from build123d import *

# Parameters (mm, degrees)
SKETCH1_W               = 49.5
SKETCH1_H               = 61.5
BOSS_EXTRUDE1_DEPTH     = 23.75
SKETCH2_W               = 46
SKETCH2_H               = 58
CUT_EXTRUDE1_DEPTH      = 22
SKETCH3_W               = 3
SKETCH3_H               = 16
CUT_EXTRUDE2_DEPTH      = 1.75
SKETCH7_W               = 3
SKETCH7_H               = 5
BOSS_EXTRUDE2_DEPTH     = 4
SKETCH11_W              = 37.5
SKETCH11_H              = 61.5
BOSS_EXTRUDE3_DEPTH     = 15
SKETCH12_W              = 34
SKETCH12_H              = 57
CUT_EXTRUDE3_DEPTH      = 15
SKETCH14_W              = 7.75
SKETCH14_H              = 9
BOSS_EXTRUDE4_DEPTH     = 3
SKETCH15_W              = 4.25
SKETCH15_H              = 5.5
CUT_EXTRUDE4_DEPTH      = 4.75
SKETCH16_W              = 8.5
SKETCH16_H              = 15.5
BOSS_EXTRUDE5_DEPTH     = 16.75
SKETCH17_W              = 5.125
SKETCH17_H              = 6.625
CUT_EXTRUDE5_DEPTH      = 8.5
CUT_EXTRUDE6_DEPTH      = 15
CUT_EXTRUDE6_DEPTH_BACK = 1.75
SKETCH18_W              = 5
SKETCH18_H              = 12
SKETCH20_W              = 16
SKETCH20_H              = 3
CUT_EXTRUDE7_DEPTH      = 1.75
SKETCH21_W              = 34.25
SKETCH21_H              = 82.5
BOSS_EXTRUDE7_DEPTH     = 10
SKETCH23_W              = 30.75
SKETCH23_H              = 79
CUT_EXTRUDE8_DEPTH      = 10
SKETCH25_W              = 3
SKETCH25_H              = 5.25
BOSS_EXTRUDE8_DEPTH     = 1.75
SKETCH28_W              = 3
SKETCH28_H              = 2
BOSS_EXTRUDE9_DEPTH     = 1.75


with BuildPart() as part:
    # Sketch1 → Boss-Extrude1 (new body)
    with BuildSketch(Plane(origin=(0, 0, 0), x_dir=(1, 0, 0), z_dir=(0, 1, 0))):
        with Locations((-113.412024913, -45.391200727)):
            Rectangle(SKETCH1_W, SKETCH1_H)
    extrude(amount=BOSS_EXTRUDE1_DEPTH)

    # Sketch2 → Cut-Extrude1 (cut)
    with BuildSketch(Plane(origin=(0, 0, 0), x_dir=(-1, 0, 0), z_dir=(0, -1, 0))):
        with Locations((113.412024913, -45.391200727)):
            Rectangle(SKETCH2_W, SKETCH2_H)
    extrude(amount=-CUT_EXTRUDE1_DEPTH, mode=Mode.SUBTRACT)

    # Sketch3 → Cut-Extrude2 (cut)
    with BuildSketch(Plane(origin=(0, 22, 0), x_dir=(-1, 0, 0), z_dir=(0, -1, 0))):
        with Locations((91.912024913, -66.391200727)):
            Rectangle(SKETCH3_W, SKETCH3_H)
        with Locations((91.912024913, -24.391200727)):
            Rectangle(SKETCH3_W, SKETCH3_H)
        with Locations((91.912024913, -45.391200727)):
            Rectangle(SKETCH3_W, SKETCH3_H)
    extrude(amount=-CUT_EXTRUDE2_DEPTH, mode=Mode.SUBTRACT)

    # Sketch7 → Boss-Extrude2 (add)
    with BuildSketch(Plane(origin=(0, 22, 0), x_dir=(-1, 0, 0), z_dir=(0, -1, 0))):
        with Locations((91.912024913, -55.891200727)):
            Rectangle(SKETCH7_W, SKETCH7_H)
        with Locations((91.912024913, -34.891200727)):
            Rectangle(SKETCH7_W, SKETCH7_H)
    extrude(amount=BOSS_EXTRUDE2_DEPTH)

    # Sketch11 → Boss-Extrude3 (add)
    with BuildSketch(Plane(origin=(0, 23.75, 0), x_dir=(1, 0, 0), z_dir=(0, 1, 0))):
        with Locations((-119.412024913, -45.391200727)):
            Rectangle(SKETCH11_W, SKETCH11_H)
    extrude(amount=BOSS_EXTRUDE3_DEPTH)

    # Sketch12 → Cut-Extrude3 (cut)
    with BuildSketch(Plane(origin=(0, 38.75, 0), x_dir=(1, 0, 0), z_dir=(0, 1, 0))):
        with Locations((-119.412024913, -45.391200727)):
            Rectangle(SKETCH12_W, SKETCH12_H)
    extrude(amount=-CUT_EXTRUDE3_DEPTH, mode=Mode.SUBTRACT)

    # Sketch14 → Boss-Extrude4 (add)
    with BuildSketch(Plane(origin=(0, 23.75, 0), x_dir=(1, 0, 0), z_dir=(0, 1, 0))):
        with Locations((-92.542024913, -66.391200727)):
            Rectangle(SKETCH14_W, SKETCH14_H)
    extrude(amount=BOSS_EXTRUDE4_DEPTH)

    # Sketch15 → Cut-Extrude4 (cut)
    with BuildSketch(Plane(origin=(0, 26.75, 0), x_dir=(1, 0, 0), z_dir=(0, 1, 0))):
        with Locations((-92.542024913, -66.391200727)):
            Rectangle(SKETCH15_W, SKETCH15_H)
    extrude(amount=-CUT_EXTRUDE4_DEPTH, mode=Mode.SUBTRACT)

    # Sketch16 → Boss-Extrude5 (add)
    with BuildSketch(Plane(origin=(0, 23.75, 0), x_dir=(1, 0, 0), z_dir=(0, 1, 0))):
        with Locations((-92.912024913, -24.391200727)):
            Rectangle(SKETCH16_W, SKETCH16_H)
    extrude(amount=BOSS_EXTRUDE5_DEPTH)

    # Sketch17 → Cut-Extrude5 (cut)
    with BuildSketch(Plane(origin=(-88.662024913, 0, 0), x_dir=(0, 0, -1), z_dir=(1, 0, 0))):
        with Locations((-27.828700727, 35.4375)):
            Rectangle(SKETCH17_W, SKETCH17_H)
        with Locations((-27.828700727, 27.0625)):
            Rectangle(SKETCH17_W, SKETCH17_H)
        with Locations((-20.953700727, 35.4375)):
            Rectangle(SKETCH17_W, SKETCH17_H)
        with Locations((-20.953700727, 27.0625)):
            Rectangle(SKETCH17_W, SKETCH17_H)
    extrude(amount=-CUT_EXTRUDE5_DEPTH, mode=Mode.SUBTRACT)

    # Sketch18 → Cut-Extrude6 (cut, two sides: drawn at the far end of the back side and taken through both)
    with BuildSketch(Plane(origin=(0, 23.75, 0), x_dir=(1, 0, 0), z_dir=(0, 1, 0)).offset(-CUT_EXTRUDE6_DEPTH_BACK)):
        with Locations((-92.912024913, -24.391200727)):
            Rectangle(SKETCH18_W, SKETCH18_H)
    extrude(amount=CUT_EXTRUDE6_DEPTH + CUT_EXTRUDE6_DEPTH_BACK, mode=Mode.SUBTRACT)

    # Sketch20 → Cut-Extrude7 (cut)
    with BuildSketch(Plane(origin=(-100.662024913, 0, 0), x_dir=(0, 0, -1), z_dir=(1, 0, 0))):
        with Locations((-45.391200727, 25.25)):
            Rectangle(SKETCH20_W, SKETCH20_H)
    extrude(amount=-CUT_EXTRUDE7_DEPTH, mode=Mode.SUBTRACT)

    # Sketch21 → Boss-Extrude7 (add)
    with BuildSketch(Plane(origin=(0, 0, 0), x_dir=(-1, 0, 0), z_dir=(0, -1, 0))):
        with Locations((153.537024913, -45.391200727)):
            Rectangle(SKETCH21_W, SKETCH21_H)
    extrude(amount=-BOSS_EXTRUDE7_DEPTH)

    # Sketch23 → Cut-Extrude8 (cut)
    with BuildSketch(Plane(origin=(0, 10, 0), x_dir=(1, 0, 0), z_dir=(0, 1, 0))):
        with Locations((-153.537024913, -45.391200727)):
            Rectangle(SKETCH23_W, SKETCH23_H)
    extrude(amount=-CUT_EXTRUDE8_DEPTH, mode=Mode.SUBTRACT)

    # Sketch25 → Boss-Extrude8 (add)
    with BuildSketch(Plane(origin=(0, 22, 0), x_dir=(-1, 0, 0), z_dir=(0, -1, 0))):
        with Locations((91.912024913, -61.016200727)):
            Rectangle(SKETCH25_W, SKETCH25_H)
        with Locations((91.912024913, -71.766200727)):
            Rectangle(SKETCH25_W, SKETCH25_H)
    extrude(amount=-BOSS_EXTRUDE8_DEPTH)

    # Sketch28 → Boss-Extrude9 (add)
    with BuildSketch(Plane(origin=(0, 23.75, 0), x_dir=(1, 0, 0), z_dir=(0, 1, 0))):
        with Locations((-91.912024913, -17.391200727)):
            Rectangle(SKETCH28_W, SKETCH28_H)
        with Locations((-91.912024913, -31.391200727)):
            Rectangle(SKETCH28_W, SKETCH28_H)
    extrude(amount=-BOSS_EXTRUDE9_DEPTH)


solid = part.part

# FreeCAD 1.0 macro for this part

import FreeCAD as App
import Part
import Sketcher

V = App.Vector

doc = App.newDocument("Part")
body = doc.addObject("PartDesign::Body", "Body")

# Sketch on XZ plane
sketch1 = body.newObject("Sketcher::SketchObject", "Sketch")
sketch1.AttachmentSupport = (doc.getObject("XZ_Plane"), [""])
sketch1.MapMode = "FlatFace"
sketch1.addGeometry([
    Part.LineSegment(V(-138, 15, 0), V(-138, 76, 0)),
    Part.LineSegment(V(-138, 76, 0), V(-89, 76, 0)),
    Part.LineSegment(V(-89, 76, 0), V(-89, 15, 0)),
    Part.LineSegment(V(-89, 15, 0), V(-138, 15, 0)),
], False)
sketch1.addConstraint([
    Sketcher.Constraint("Coincident", 0, 2, 1, 1),
    Sketcher.Constraint("Coincident", 1, 2, 2, 1),
    Sketcher.Constraint("Coincident", 2, 2, 3, 1),
    Sketcher.Constraint("Coincident", 3, 2, 0, 1),
    Sketcher.Constraint("Vertical", 0),
    Sketcher.Constraint("Horizontal", 1),
    Sketcher.Constraint("Vertical", 2),
    Sketcher.Constraint("Horizontal", 3),
    Sketcher.Constraint("DistanceX", 1, 1, 1, 2, 49.5),
    Sketcher.Constraint("DistanceY", 0, 1, 0, 2, 61.5),
    Sketcher.Constraint("DistanceY", -1, 1, 0, 2, 76.141201),
    Sketcher.Constraint("DistanceX", 0, 2, -1, 1, 138.162025),
])
pad1 = body.newObject("PartDesign::Pad", "Pad")
pad1.Profile = sketch1
pad1.Length = 23.75
pad1.Reversed = True

# Sketch on XZ plane
sketch2 = body.newObject("Sketcher::SketchObject", "Sketch001")
sketch2.AttachmentSupport = (doc.getObject("XZ_Plane"), [""])
sketch2.MapMode = "FlatFace"
sketch2.addGeometry([
    Part.LineSegment(V(-90, 16, 0), V(-90, 74, 0)),
    Part.LineSegment(V(-90, 74, 0), V(-136, 74, 0)),
    Part.LineSegment(V(-136, 74, 0), V(-136, 16, 0)),
    Part.LineSegment(V(-136, 16, 0), V(-90, 16, 0)),
], False)
sketch2.addConstraint([
    Sketcher.Constraint("Coincident", 0, 2, 1, 1),
    Sketcher.Constraint("Coincident", 1, 2, 2, 1),
    Sketcher.Constraint("Coincident", 2, 2, 3, 1),
    Sketcher.Constraint("Coincident", 3, 2, 0, 1),
    Sketcher.Constraint("Vertical", 0),
    Sketcher.Constraint("Horizontal", 1),
    Sketcher.Constraint("Vertical", 2),
    Sketcher.Constraint("Horizontal", 3),
    Sketcher.Constraint("DistanceX", 1, 2, 1, 1, 46.0),
    Sketcher.Constraint("DistanceY", 0, 1, 0, 2, 58.0),
    Sketcher.Constraint("DistanceY", -1, 1, 0, 2, 74.391201),
    Sketcher.Constraint("DistanceX", 0, 2, -1, 1, 90.412025),
])
pocket1 = body.newObject("PartDesign::Pocket", "Pocket")
pocket1.Profile = sketch2
pocket1.Length = 22

# Sketch on XZ plane
sketch3 = body.newObject("Sketcher::SketchObject", "Sketch002")
sketch3.AttachmentSupport = (doc.getObject("XZ_Plane"), [""])
sketch3.MapMode = "FlatFace"
sketch3.AttachmentOffset = App.Placement(V(0, 0, -22), App.Rotation())
sketch3.addGeometry([
    Part.LineSegment(V(-90.4, 58.4, 0), V(-90.4, 74.4, 0)),  # 0
    Part.LineSegment(V(-90.4, 74.4, 0), V(-93.4, 74.4, 0)),  # 1
    Part.LineSegment(V(-93.4, 74.4, 0), V(-93.4, 58.4, 0)),  # 2
    Part.LineSegment(V(-93.4, 58.4, 0), V(-90.4, 58.4, 0)),  # 3
    Part.LineSegment(V(-90.4, 16.4, 0), V(-90.4, 32.4, 0)),  # 4
    Part.LineSegment(V(-90.4, 32.4, 0), V(-93.4, 32.4, 0)),  # 5
    Part.LineSegment(V(-93.4, 32.4, 0), V(-93.4, 16.4, 0)),  # 6
    Part.LineSegment(V(-93.4, 16.4, 0), V(-90.4, 16.4, 0)),  # 7
    Part.LineSegment(V(-90.4, 37.4, 0), V(-90.4, 53.4, 0)),  # 8
    Part.LineSegment(V(-90.4, 53.4, 0), V(-93.4, 53.4, 0)),  # 9
    Part.LineSegment(V(-93.4, 53.4, 0), V(-93.4, 37.4, 0)),  # 10
    Part.LineSegment(V(-93.4, 37.4, 0), V(-90.4, 37.4, 0)),  # 11
], False)
sketch3.addConstraint([
    Sketcher.Constraint("Coincident", 0, 2, 1, 1),
    Sketcher.Constraint("Coincident", 1, 2, 2, 1),
    Sketcher.Constraint("Coincident", 2, 2, 3, 1),
    Sketcher.Constraint("Coincident", 3, 2, 0, 1),
    Sketcher.Constraint("Coincident", 4, 2, 5, 1),
    Sketcher.Constraint("Coincident", 5, 2, 6, 1),
    Sketcher.Constraint("Coincident", 6, 2, 7, 1),
    Sketcher.Constraint("Coincident", 7, 2, 4, 1),
    Sketcher.Constraint("Coincident", 8, 2, 9, 1),
    Sketcher.Constraint("Coincident", 9, 2, 10, 1),
    Sketcher.Constraint("Coincident", 10, 2, 11, 1),
    Sketcher.Constraint("Coincident", 11, 2, 8, 1),
    Sketcher.Constraint("Vertical", 0),
    Sketcher.Constraint("Horizontal", 1),
    Sketcher.Constraint("Vertical", 2),
    Sketcher.Constraint("Horizontal", 3),
    Sketcher.Constraint("Vertical", 4),
    Sketcher.Constraint("Horizontal", 5),
    Sketcher.Constraint("Vertical", 6),
    Sketcher.Constraint("Horizontal", 7),
    Sketcher.Constraint("Vertical", 8),
    Sketcher.Constraint("Horizontal", 9),
    Sketcher.Constraint("Vertical", 10),
    Sketcher.Constraint("Horizontal", 11),
    Sketcher.Constraint("Vertical", 3, 2, 4, 2),
    Sketcher.Constraint("Vertical", 2, 2, 5, 2),
    Sketcher.Constraint("Vertical", 7, 2, 8, 2),
    Sketcher.Constraint("Vertical", 6, 2, 9, 2),
    Sketcher.Constraint("Equal", 2, 4),
    Sketcher.Constraint("Equal", 6, 8),
    Sketcher.Constraint("DistanceX", 1, 2, 1, 1, 3.0),
    Sketcher.Constraint("DistanceY", 0, 1, 0, 2, 16.0),
    Sketcher.Constraint("DistanceY", 4, 2, 3, 2, 26.0),
    Sketcher.Constraint("DistanceY", 8, 2, 3, 2, 5.0),
    Sketcher.Constraint("DistanceY", -1, 1, 0, 2, 74.391201),
    Sketcher.Constraint("DistanceX", 0, 2, -1, 1, 90.412025),
])
pocket2 = body.newObject("PartDesign::Pocket", "Pocket001")
pocket2.Profile = sketch3
pocket2.Length = 1.75

# Sketch on XZ plane
sketch4 = body.newObject("Sketcher::SketchObject", "Sketch003")
sketch4.AttachmentSupport = (doc.getObject("XZ_Plane"), [""])
sketch4.MapMode = "FlatFace"
sketch4.AttachmentOffset = App.Placement(V(0, 0, -22), App.Rotation())
sketch4.addGeometry([
    Part.LineSegment(V(-90.4, 53.4, 0), V(-90.4, 58.4, 0)),  # 0
    Part.LineSegment(V(-90.4, 58.4, 0), V(-93.4, 58.4, 0)),  # 1
    Part.LineSegment(V(-93.4, 58.4, 0), V(-93.4, 53.4, 0)),  # 2
    Part.LineSegment(V(-93.4, 53.4, 0), V(-90.4, 53.4, 0)),  # 3
    Part.LineSegment(V(-90.4, 32.4, 0), V(-90.4, 37.4, 0)),  # 4
    Part.LineSegment(V(-90.4, 37.4, 0), V(-93.4, 37.4, 0)),  # 5
    Part.LineSegment(V(-93.4, 37.4, 0), V(-93.4, 32.4, 0)),  # 6
    Part.LineSegment(V(-93.4, 32.4, 0), V(-90.4, 32.4, 0)),  # 7
], False)
sketch4.addConstraint([
    Sketcher.Constraint("Coincident", 0, 2, 1, 1),
    Sketcher.Constraint("Coincident", 1, 2, 2, 1),
    Sketcher.Constraint("Coincident", 2, 2, 3, 1),
    Sketcher.Constraint("Coincident", 3, 2, 0, 1),
    Sketcher.Constraint("Coincident", 4, 2, 5, 1),
    Sketcher.Constraint("Coincident", 5, 2, 6, 1),
    Sketcher.Constraint("Coincident", 6, 2, 7, 1),
    Sketcher.Constraint("Coincident", 7, 2, 4, 1),
    Sketcher.Constraint("Vertical", 0),
    Sketcher.Constraint("Horizontal", 1),
    Sketcher.Constraint("Vertical", 2),
    Sketcher.Constraint("Horizontal", 3),
    Sketcher.Constraint("Vertical", 4),
    Sketcher.Constraint("Horizontal", 5),
    Sketcher.Constraint("Vertical", 6),
    Sketcher.Constraint("Horizontal", 7),
    Sketcher.Constraint("Vertical", 3, 2, 4, 2),
    Sketcher.Constraint("Vertical", 2, 2, 5, 2),
    Sketcher.Constraint("Equal", 2, 4),
    Sketcher.Constraint("DistanceX", 1, 2, 1, 1, 3.0),
    Sketcher.Constraint("DistanceY", 0, 1, 0, 2, 5.0),
    Sketcher.Constraint("DistanceY", 4, 2, 3, 2, 16.0),
    Sketcher.Constraint("DistanceY", -1, 1, 0, 2, 58.391201),
    Sketcher.Constraint("DistanceX", 0, 2, -1, 1, 90.412025),
])
pad2 = body.newObject("PartDesign::Pad", "Pad001")
pad2.Profile = sketch4
pad2.Length = 4

# Sketch on XZ plane
sketch5 = body.newObject("Sketcher::SketchObject", "Sketch004")
sketch5.AttachmentSupport = (doc.getObject("XZ_Plane"), [""])
sketch5.MapMode = "FlatFace"
sketch5.AttachmentOffset = App.Placement(V(0, 0, -23.75), App.Rotation())
sketch5.addGeometry([
    Part.LineSegment(V(-138, 15, 0), V(-138, 76, 0)),
    Part.LineSegment(V(-138, 76, 0), V(-101, 76, 0)),
    Part.LineSegment(V(-101, 76, 0), V(-101, 15, 0)),
    Part.LineSegment(V(-101, 15, 0), V(-138, 15, 0)),
], False)
sketch5.addConstraint([
    Sketcher.Constraint("Coincident", 0, 2, 1, 1),
    Sketcher.Constraint("Coincident", 1, 2, 2, 1),
    Sketcher.Constraint("Coincident", 2, 2, 3, 1),
    Sketcher.Constraint("Coincident", 3, 2, 0, 1),
    Sketcher.Constraint("Vertical", 0),
    Sketcher.Constraint("Horizontal", 1),
    Sketcher.Constraint("Vertical", 2),
    Sketcher.Constraint("Horizontal", 3),
    Sketcher.Constraint("DistanceX", 1, 1, 1, 2, 37.5),
    Sketcher.Constraint("DistanceY", 0, 1, 0, 2, 61.5),
    Sketcher.Constraint("DistanceY", -1, 1, 0, 2, 76.141201),
    Sketcher.Constraint("DistanceX", 0, 2, -1, 1, 138.162025),
])
pad3 = body.newObject("PartDesign::Pad", "Pad002")
pad3.Profile = sketch5
pad3.Length = 15
pad3.Reversed = True

# Sketch on XZ plane
sketch6 = body.newObject("Sketcher::SketchObject", "Sketch005")
sketch6.AttachmentSupport = (doc.getObject("XZ_Plane"), [""])
sketch6.MapMode = "FlatFace"
sketch6.AttachmentOffset = App.Placement(V(0, 0, -38.75), App.Rotation())
sketch6.addGeometry([
    Part.LineSegment(V(-136, 17, 0), V(-136, 74, 0)),
    Part.LineSegment(V(-136, 74, 0), V(-102, 74, 0)),
    Part.LineSegment(V(-102, 74, 0), V(-102, 17, 0)),
    Part.LineSegment(V(-102, 17, 0), V(-136, 17, 0)),
], False)
sketch6.addConstraint([
    Sketcher.Constraint("Coincident", 0, 2, 1, 1),
    Sketcher.Constraint("Coincident", 1, 2, 2, 1),
    Sketcher.Constraint("Coincident", 2, 2, 3, 1),
    Sketcher.Constraint("Coincident", 3, 2, 0, 1),
    Sketcher.Constraint("Vertical", 0),
    Sketcher.Constraint("Horizontal", 1),
    Sketcher.Constraint("Vertical", 2),
    Sketcher.Constraint("Horizontal", 3),
    Sketcher.Constraint("DistanceX", 1, 1, 1, 2, 34.0),
    Sketcher.Constraint("DistanceY", 0, 1, 0, 2, 57.0),
    Sketcher.Constraint("DistanceY", -1, 1, 0, 2, 73.891201),
    Sketcher.Constraint("DistanceX", 0, 2, -1, 1, 136.412025),
])
pocket3 = body.newObject("PartDesign::Pocket", "Pocket002")
pocket3.Profile = sketch6
pocket3.Length = 15
pocket3.Reversed = True

# Sketch on XZ plane
sketch7 = body.newObject("Sketcher::SketchObject", "Sketch006")
sketch7.AttachmentSupport = (doc.getObject("XZ_Plane"), [""])
sketch7.MapMode = "FlatFace"
sketch7.AttachmentOffset = App.Placement(V(0, 0, -23.75), App.Rotation())
sketch7.addGeometry([
    Part.LineSegment(V(-96, 62, 0), V(-96, 71, 0)),
    Part.LineSegment(V(-96, 71, 0), V(-89, 71, 0)),
    Part.LineSegment(V(-89, 71, 0), V(-89, 62, 0)),
    Part.LineSegment(V(-89, 62, 0), V(-96, 62, 0)),
], False)
sketch7.addConstraint([
    Sketcher.Constraint("Coincident", 0, 2, 1, 1),
    Sketcher.Constraint("Coincident", 1, 2, 2, 1),
    Sketcher.Constraint("Coincident", 2, 2, 3, 1),
    Sketcher.Constraint("Coincident", 3, 2, 0, 1),
    Sketcher.Constraint("Vertical", 0),
    Sketcher.Constraint("Horizontal", 1),
    Sketcher.Constraint("Vertical", 2),
    Sketcher.Constraint("Horizontal", 3),
    Sketcher.Constraint("DistanceY", 0, 1, 0, 2, 9.0),
    Sketcher.Constraint("DistanceX", 1, 1, 1, 2, 7.75),
    Sketcher.Constraint("DistanceY", -1, 1, 0, 2, 70.891201),
    Sketcher.Constraint("DistanceX", 0, 2, -1, 1, 96.417025),
])
pad4 = body.newObject("PartDesign::Pad", "Pad003")
pad4.Profile = sketch7
pad4.Length = 3
pad4.Reversed = True

# Sketch on XZ plane
sketch8 = body.newObject("Sketcher::SketchObject", "Sketch007")
sketch8.AttachmentSupport = (doc.getObject("XZ_Plane"), [""])
sketch8.MapMode = "FlatFace"
sketch8.AttachmentOffset = App.Placement(V(0, 0, -26.75), App.Rotation())
sketch8.addGeometry([
    Part.LineSegment(V(-94.7, 63.6, 0), V(-94.7, 69.1, 0)),
    Part.LineSegment(V(-94.7, 69.1, 0), V(-90.4, 69.1, 0)),
    Part.LineSegment(V(-90.4, 69.1, 0), V(-90.4, 63.6, 0)),
    Part.LineSegment(V(-90.4, 63.6, 0), V(-94.7, 63.6, 0)),
], False)
sketch8.addConstraint([
    Sketcher.Constraint("Coincident", 0, 2, 1, 1),
    Sketcher.Constraint("Coincident", 1, 2, 2, 1),
    Sketcher.Constraint("Coincident", 2, 2, 3, 1),
    Sketcher.Constraint("Coincident", 3, 2, 0, 1),
    Sketcher.Constraint("Vertical", 0),
    Sketcher.Constraint("Horizontal", 1),
    Sketcher.Constraint("Vertical", 2),
    Sketcher.Constraint("Horizontal", 3),
    Sketcher.Constraint("DistanceY", 0, 1, 0, 2, 5.5),
    Sketcher.Constraint("DistanceX", 1, 1, 1, 2, 4.25),
    Sketcher.Constraint("DistanceY", -1, 1, 0, 2, 69.141201),
    Sketcher.Constraint("DistanceX", 0, 2, -1, 1, 94.667025),
])
pocket4 = body.newObject("PartDesign::Pocket", "Pocket003")
pocket4.Profile = sketch8
pocket4.Length = 4.75
pocket4.Reversed = True

# Sketch on XZ plane
sketch9 = body.newObject("Sketcher::SketchObject", "Sketch008")
sketch9.AttachmentSupport = (doc.getObject("XZ_Plane"), [""])
sketch9.MapMode = "FlatFace"
sketch9.AttachmentOffset = App.Placement(V(0, 0, -23.75), App.Rotation())
sketch9.addGeometry([
    Part.LineSegment(V(-97, 17, 0), V(-97, 32, 0)),
    Part.LineSegment(V(-97, 32, 0), V(-89, 32, 0)),
    Part.LineSegment(V(-89, 32, 0), V(-89, 17, 0)),
    Part.LineSegment(V(-89, 17, 0), V(-97, 17, 0)),
], False)
sketch9.addConstraint([
    Sketcher.Constraint("Coincident", 0, 2, 1, 1),
    Sketcher.Constraint("Coincident", 1, 2, 2, 1),
    Sketcher.Constraint("Coincident", 2, 2, 3, 1),
    Sketcher.Constraint("Coincident", 3, 2, 0, 1),
    Sketcher.Constraint("Vertical", 0),
    Sketcher.Constraint("Horizontal", 1),
    Sketcher.Constraint("Vertical", 2),
    Sketcher.Constraint("Horizontal", 3),
    Sketcher.Constraint("DistanceX", 1, 1, 1, 2, 8.5),
    Sketcher.Constraint("DistanceY", 0, 1, 0, 2, 15.5),
    Sketcher.Constraint("DistanceY", -1, 1, 0, 2, 32.141201),
    Sketcher.Constraint("DistanceX", 0, 2, -1, 1, 97.162025),
])
pad5 = body.newObject("PartDesign::Pad", "Pad004")
pad5.Profile = sketch9
pad5.Length = 16.75
pad5.Reversed = True

# Sketch on YZ plane
sketch10 = body.newObject("Sketcher::SketchObject", "Sketch009")
sketch10.AttachmentSupport = (doc.getObject("YZ_Plane"), [""])
sketch10.MapMode = "FlatFace"
sketch10.AttachmentOffset = App.Placement(V(0, 0, -88.662025), App.Rotation())
sketch10.addGeometry([
    Part.LineSegment(V(39, 30, 0), V(32, 30, 0)),  # 0
    Part.LineSegment(V(32, 30, 0), V(32, 25, 0)),  # 1
    Part.LineSegment(V(32, 25, 0), V(39, 25, 0)),  # 2
    Part.LineSegment(V(39, 25, 0), V(39, 30, 0)),  # 3
    Part.LineSegment(V(30, 30, 0), V(24, 30, 0)),  # 4
    Part.LineSegment(V(24, 30, 0), V(24, 25, 0)),  # 5
    Part.LineSegment(V(24, 25, 0), V(30, 25, 0)),  # 6
    Part.LineSegment(V(30, 25, 0), V(30, 30, 0)),  # 7
    Part.LineSegment(V(39, 24, 0), V(32, 24, 0)),  # 8
    Part.LineSegment(V(32, 24, 0), V(32, 18, 0)),  # 9
    Part.LineSegment(V(32, 18, 0), V(39, 18, 0)),  # 10
    Part.LineSegment(V(39, 18, 0), V(39, 24, 0)),  # 11
    Part.LineSegment(V(30, 24, 0), V(24, 24, 0)),  # 12
    Part.LineSegment(V(24, 24, 0), V(24, 18, 0)),  # 13
    Part.LineSegment(V(24, 18, 0), V(30, 18, 0)),  # 14
    Part.LineSegment(V(30, 18, 0), V(30, 24, 0)),  # 15
], False)
sketch10.addConstraint([
    Sketcher.Constraint("Coincident", 0, 2, 1, 1),
    Sketcher.Constraint("Coincident", 1, 2, 2, 1),
    Sketcher.Constraint("Coincident", 2, 2, 3, 1),
    Sketcher.Constraint("Coincident", 3, 2, 0, 1),
    Sketcher.Constraint("Coincident", 4, 2, 5, 1),
    Sketcher.Constraint("Coincident", 5, 2, 6, 1),
    Sketcher.Constraint("Coincident", 6, 2, 7, 1),
    Sketcher.Constraint("Coincident", 7, 2, 4, 1),
    Sketcher.Constraint("Coincident", 8, 2, 9, 1),
    Sketcher.Constraint("Coincident", 9, 2, 10, 1),
    Sketcher.Constraint("Coincident", 10, 2, 11, 1),
    Sketcher.Constraint("Coincident", 11, 2, 8, 1),
    Sketcher.Constraint("Coincident", 12, 2, 13, 1),
    Sketcher.Constraint("Coincident", 13, 2, 14, 1),
    Sketcher.Constraint("Coincident", 14, 2, 15, 1),
    Sketcher.Constraint("Coincident", 15, 2, 12, 1),
    Sketcher.Constraint("Horizontal", 0),
    Sketcher.Constraint("Vertical", 1),
    Sketcher.Constraint("Horizontal", 2),
    Sketcher.Constraint("Vertical", 3),
    Sketcher.Constraint("Horizontal", 4),
    Sketcher.Constraint("Vertical", 5),
    Sketcher.Constraint("Horizontal", 6),
    Sketcher.Constraint("Vertical", 7),
    Sketcher.Constraint("Horizontal", 8),
    Sketcher.Constraint("Vertical", 9),
    Sketcher.Constraint("Horizontal", 10),
    Sketcher.Constraint("Vertical", 11),
    Sketcher.Constraint("Horizontal", 12),
    Sketcher.Constraint("Vertical", 13),
    Sketcher.Constraint("Horizontal", 14),
    Sketcher.Constraint("Vertical", 15),
    Sketcher.Constraint("Horizontal", 3, 2, 4, 2),
    Sketcher.Constraint("Horizontal", 2, 2, 5, 2),
    Sketcher.Constraint("Horizontal", 11, 2, 12, 2),
    Sketcher.Constraint("Horizontal", 10, 2, 13, 2),
    Sketcher.Constraint("Vertical", 1, 2, 8, 2),
    Sketcher.Constraint("Vertical", 3, 2, 10, 2),
    Sketcher.Constraint("Vertical", 5, 2, 12, 2),
    Sketcher.Constraint("Vertical", 7, 2, 14, 2),
    Sketcher.Constraint("Equal", 2, 4),
    Sketcher.Constraint("Equal", 7, 9),
    Sketcher.Constraint("DistanceX", 4, 2, 3, 2, 15.0),
    Sketcher.Constraint("DistanceX", 0, 2, 0, 1, 6.625),
    Sketcher.Constraint("DistanceY", 1, 2, 1, 1, 5.125),
    Sketcher.Constraint("DistanceX", -1, 1, 2, 2, 38.75),
    Sketcher.Constraint("DistanceY", 8, 2, 1, 2, 1.75),
    Sketcher.Constraint("DistanceY", -1, 1, 0, 2, 30.391201),
])
pocket5 = body.newObject("PartDesign::Pocket", "Pocket004")
pocket5.Profile = sketch10
pocket5.Length = 8.5

# Sketch on XZ plane
sketch11 = body.newObject("Sketcher::SketchObject", "Sketch010")
sketch11.AttachmentSupport = (doc.getObject("XZ_Plane"), [""])
sketch11.MapMode = "FlatFace"
sketch11.AttachmentOffset = App.Placement(V(0, 0, -23.75), App.Rotation())
sketch11.addGeometry([
    Part.LineSegment(V(-95, 18, 0), V(-95, 30, 0)),
    Part.LineSegment(V(-95, 30, 0), V(-90, 30, 0)),
    Part.LineSegment(V(-90, 30, 0), V(-90, 18, 0)),
    Part.LineSegment(V(-90, 18, 0), V(-95, 18, 0)),
], False)
sketch11.addConstraint([
    Sketcher.Constraint("Coincident", 0, 2, 1, 1),
    Sketcher.Constraint("Coincident", 1, 2, 2, 1),
    Sketcher.Constraint("Coincident", 2, 2, 3, 1),
    Sketcher.Constraint("Coincident", 3, 2, 0, 1),
    Sketcher.Constraint("Vertical", 0),
    Sketcher.Constraint("Horizontal", 1),
    Sketcher.Constraint("Vertical", 2),
    Sketcher.Constraint("Horizontal", 3),
    Sketcher.Constraint("DistanceX", 1, 1, 1, 2, 5.0),
    Sketcher.Constraint("DistanceY", 0, 1, 0, 2, 12.0),
    Sketcher.Constraint("DistanceY", -1, 1, 0, 2, 30.391201),
    Sketcher.Constraint("DistanceX", 0, 2, -1, 1, 95.412025),
])
pocket6 = body.newObject("PartDesign::Pocket", "Pocket005")
pocket6.Profile = sketch11
pocket6.Type = "TwoLengths"
pocket6.Length = 15
pocket6.Length2 = 1.75

# Sketch on YZ plane
sketch12 = body.newObject("Sketcher::SketchObject", "Sketch011")
sketch12.AttachmentSupport = (doc.getObject("YZ_Plane"), [""])
sketch12.MapMode = "FlatFace"
sketch12.AttachmentOffset = App.Placement(V(0, 0, -100.662025), App.Rotation())
sketch12.addGeometry([
    Part.LineSegment(V(26.8, 53.4, 0), V(23.8, 53.4, 0)),
    Part.LineSegment(V(23.8, 53.4, 0), V(23.8, 37.4, 0)),
    Part.LineSegment(V(23.8, 37.4, 0), V(26.8, 37.4, 0)),
    Part.LineSegment(V(26.8, 37.4, 0), V(26.8, 53.4, 0)),
], False)
sketch12.addConstraint([
    Sketcher.Constraint("Coincident", 0, 2, 1, 1),
    Sketcher.Constraint("Coincident", 1, 2, 2, 1),
    Sketcher.Constraint("Coincident", 2, 2, 3, 1),
    Sketcher.Constraint("Coincident", 3, 2, 0, 1),
    Sketcher.Constraint("Horizontal", 0),
    Sketcher.Constraint("Vertical", 1),
    Sketcher.Constraint("Horizontal", 2),
    Sketcher.Constraint("Vertical", 3),
    Sketcher.Constraint("DistanceX", 0, 2, 0, 1, 3.0),
    Sketcher.Constraint("DistanceY", 1, 2, 1, 1, 16.0),
    Sketcher.Constraint("DistanceX", -1, 1, 0, 2, 23.75),
    Sketcher.Constraint("DistanceY", -1, 1, 0, 2, 53.391201),
])
pocket7 = body.newObject("PartDesign::Pocket", "Pocket006")
pocket7.Profile = sketch12
pocket7.Length = 1.75

# Sketch on XZ plane
sketch13 = body.newObject("Sketcher::SketchObject", "Sketch012")
sketch13.AttachmentSupport = (doc.getObject("XZ_Plane"), [""])
sketch13.MapMode = "FlatFace"
sketch13.addGeometry([
    Part.LineSegment(V(-136, 4, 0), V(-136, 87, 0)),
    Part.LineSegment(V(-136, 87, 0), V(-171, 87, 0)),
    Part.LineSegment(V(-171, 87, 0), V(-171, 4, 0)),
    Part.LineSegment(V(-171, 4, 0), V(-136, 4, 0)),
], False)
sketch13.addConstraint([
    Sketcher.Constraint("Coincident", 0, 2, 1, 1),
    Sketcher.Constraint("Coincident", 1, 2, 2, 1),
    Sketcher.Constraint("Coincident", 2, 2, 3, 1),
    Sketcher.Constraint("Coincident", 3, 2, 0, 1),
    Sketcher.Constraint("Vertical", 0),
    Sketcher.Constraint("Horizontal", 1),
    Sketcher.Constraint("Vertical", 2),
    Sketcher.Constraint("Horizontal", 3),
    Sketcher.Constraint("DistanceY", 0, 1, 0, 2, 82.5),
    Sketcher.Constraint("DistanceX", 1, 2, 1, 1, 34.25),
    Sketcher.Constraint("DistanceY", -1, 1, 0, 2, 86.641201),
    Sketcher.Constraint("DistanceX", 0, 2, -1, 1, 136.412025),
])
pad6 = body.newObject("PartDesign::Pad", "Pad005")
pad6.Profile = sketch13
pad6.Length = 10
pad6.Reversed = True

# Sketch on XZ plane
sketch14 = body.newObject("Sketcher::SketchObject", "Sketch013")
sketch14.AttachmentSupport = (doc.getObject("XZ_Plane"), [""])
sketch14.MapMode = "FlatFace"
sketch14.AttachmentOffset = App.Placement(V(0, 0, -10), App.Rotation())
sketch14.addGeometry([
    Part.LineSegment(V(-169, 6, 0), V(-169, 85, 0)),
    Part.LineSegment(V(-169, 85, 0), V(-138, 85, 0)),
    Part.LineSegment(V(-138, 85, 0), V(-138, 6, 0)),
    Part.LineSegment(V(-138, 6, 0), V(-169, 6, 0)),
], False)
sketch14.addConstraint([
    Sketcher.Constraint("Coincident", 0, 2, 1, 1),
    Sketcher.Constraint("Coincident", 1, 2, 2, 1),
    Sketcher.Constraint("Coincident", 2, 2, 3, 1),
    Sketcher.Constraint("Coincident", 3, 2, 0, 1),
    Sketcher.Constraint("Vertical", 0),
    Sketcher.Constraint("Horizontal", 1),
    Sketcher.Constraint("Vertical", 2),
    Sketcher.Constraint("Horizontal", 3),
    Sketcher.Constraint("DistanceY", 0, 1, 0, 2, 79.0),
    Sketcher.Constraint("DistanceX", 1, 1, 1, 2, 30.75),
    Sketcher.Constraint("DistanceY", -1, 1, 0, 2, 84.891201),
    Sketcher.Constraint("DistanceX", 0, 2, -1, 1, 168.912025),
])
pocket8 = body.newObject("PartDesign::Pocket", "Pocket007")
pocket8.Profile = sketch14
pocket8.Length = 10
pocket8.Reversed = True

# Sketch on XZ plane
sketch15 = body.newObject("Sketcher::SketchObject", "Sketch014")
sketch15.AttachmentSupport = (doc.getObject("XZ_Plane"), [""])
sketch15.MapMode = "FlatFace"
sketch15.AttachmentOffset = App.Placement(V(0, 0, -22), App.Rotation())
sketch15.addGeometry([
    Part.LineSegment(V(-90.4, 58.4, 0), V(-90.4, 63.6, 0)),  # 0
    Part.LineSegment(V(-90.4, 63.6, 0), V(-93.4, 63.6, 0)),  # 1
    Part.LineSegment(V(-93.4, 63.6, 0), V(-93.4, 58.4, 0)),  # 2
    Part.LineSegment(V(-93.4, 58.4, 0), V(-90.4, 58.4, 0)),  # 3
    Part.LineSegment(V(-90.4, 69.1, 0), V(-90.4, 74.4, 0)),  # 4
    Part.LineSegment(V(-90.4, 74.4, 0), V(-93.4, 74.4, 0)),  # 5
    Part.LineSegment(V(-93.4, 74.4, 0), V(-93.4, 69.1, 0)),  # 6
    Part.LineSegment(V(-93.4, 69.1, 0), V(-90.4, 69.1, 0)),  # 7
], False)
sketch15.addConstraint([
    Sketcher.Constraint("Coincident", 0, 2, 1, 1),
    Sketcher.Constraint("Coincident", 1, 2, 2, 1),
    Sketcher.Constraint("Coincident", 2, 2, 3, 1),
    Sketcher.Constraint("Coincident", 3, 2, 0, 1),
    Sketcher.Constraint("Coincident", 4, 2, 5, 1),
    Sketcher.Constraint("Coincident", 5, 2, 6, 1),
    Sketcher.Constraint("Coincident", 6, 2, 7, 1),
    Sketcher.Constraint("Coincident", 7, 2, 4, 1),
    Sketcher.Constraint("Vertical", 0),
    Sketcher.Constraint("Horizontal", 1),
    Sketcher.Constraint("Vertical", 2),
    Sketcher.Constraint("Horizontal", 3),
    Sketcher.Constraint("Vertical", 4),
    Sketcher.Constraint("Horizontal", 5),
    Sketcher.Constraint("Vertical", 6),
    Sketcher.Constraint("Horizontal", 7),
    Sketcher.Constraint("Vertical", 3, 2, 4, 2),
    Sketcher.Constraint("Vertical", 2, 2, 5, 2),
    Sketcher.Constraint("Equal", 2, 4),
    Sketcher.Constraint("DistanceX", 1, 2, 1, 1, 3.0),
    Sketcher.Constraint("DistanceY", 3, 2, 4, 2, 16.0),
    Sketcher.Constraint("DistanceY", 0, 1, 0, 2, 5.25),
    Sketcher.Constraint("DistanceY", -1, 1, 0, 2, 63.641201),
    Sketcher.Constraint("DistanceX", 0, 2, -1, 1, 90.412025),
])
pad7 = body.newObject("PartDesign::Pad", "Pad006")
pad7.Profile = sketch15
pad7.Length = 1.75
pad7.Reversed = True

# Sketch on XZ plane
sketch16 = body.newObject("Sketcher::SketchObject", "Sketch015")
sketch16.AttachmentSupport = (doc.getObject("XZ_Plane"), [""])
sketch16.MapMode = "FlatFace"
sketch16.AttachmentOffset = App.Placement(V(0, 0, -23.75), App.Rotation())
sketch16.addGeometry([
    Part.LineSegment(V(-93.4, 16.4, 0), V(-93.4, 18.4, 0)),  # 0
    Part.LineSegment(V(-93.4, 18.4, 0), V(-90.4, 18.4, 0)),  # 1
    Part.LineSegment(V(-90.4, 18.4, 0), V(-90.4, 16.4, 0)),  # 2
    Part.LineSegment(V(-90.4, 16.4, 0), V(-93.4, 16.4, 0)),  # 3
    Part.LineSegment(V(-93.4, 30.4, 0), V(-93.4, 32.4, 0)),  # 4
    Part.LineSegment(V(-93.4, 32.4, 0), V(-90.4, 32.4, 0)),  # 5
    Part.LineSegment(V(-90.4, 32.4, 0), V(-90.4, 30.4, 0)),  # 6
    Part.LineSegment(V(-90.4, 30.4, 0), V(-93.4, 30.4, 0)),  # 7
], False)
sketch16.addConstraint([
    Sketcher.Constraint("Coincident", 0, 2, 1, 1),
    Sketcher.Constraint("Coincident", 1, 2, 2, 1),
    Sketcher.Constraint("Coincident", 2, 2, 3, 1),
    Sketcher.Constraint("Coincident", 3, 2, 0, 1),
    Sketcher.Constraint("Coincident", 4, 2, 5, 1),
    Sketcher.Constraint("Coincident", 5, 2, 6, 1),
    Sketcher.Constraint("Coincident", 6, 2, 7, 1),
    Sketcher.Constraint("Coincident", 7, 2, 4, 1),
    Sketcher.Constraint("Vertical", 0),
    Sketcher.Constraint("Horizontal", 1),
    Sketcher.Constraint("Vertical", 2),
    Sketcher.Constraint("Horizontal", 3),
    Sketcher.Constraint("Vertical", 4),
    Sketcher.Constraint("Horizontal", 5),
    Sketcher.Constraint("Vertical", 6),
    Sketcher.Constraint("Horizontal", 7),
    Sketcher.Constraint("Vertical", 3, 2, 4, 2),
    Sketcher.Constraint("Vertical", 2, 2, 5, 2),
    Sketcher.Constraint("Equal", 2, 4),
    Sketcher.Constraint("DistanceX", 1, 1, 1, 2, 3.0),
    Sketcher.Constraint("DistanceY", 0, 1, 0, 2, 2.0),
    Sketcher.Constraint("DistanceY", 0, 2, 4, 2, 14.0),
    Sketcher.Constraint("DistanceY", -1, 1, 0, 2, 18.391201),
    Sketcher.Constraint("DistanceX", 0, 2, -1, 1, 93.412025),
])
pad8 = body.newObject("PartDesign::Pad", "Pad007")
pad8.Profile = sketch16
pad8.Length = 1.75

doc.recompute()
